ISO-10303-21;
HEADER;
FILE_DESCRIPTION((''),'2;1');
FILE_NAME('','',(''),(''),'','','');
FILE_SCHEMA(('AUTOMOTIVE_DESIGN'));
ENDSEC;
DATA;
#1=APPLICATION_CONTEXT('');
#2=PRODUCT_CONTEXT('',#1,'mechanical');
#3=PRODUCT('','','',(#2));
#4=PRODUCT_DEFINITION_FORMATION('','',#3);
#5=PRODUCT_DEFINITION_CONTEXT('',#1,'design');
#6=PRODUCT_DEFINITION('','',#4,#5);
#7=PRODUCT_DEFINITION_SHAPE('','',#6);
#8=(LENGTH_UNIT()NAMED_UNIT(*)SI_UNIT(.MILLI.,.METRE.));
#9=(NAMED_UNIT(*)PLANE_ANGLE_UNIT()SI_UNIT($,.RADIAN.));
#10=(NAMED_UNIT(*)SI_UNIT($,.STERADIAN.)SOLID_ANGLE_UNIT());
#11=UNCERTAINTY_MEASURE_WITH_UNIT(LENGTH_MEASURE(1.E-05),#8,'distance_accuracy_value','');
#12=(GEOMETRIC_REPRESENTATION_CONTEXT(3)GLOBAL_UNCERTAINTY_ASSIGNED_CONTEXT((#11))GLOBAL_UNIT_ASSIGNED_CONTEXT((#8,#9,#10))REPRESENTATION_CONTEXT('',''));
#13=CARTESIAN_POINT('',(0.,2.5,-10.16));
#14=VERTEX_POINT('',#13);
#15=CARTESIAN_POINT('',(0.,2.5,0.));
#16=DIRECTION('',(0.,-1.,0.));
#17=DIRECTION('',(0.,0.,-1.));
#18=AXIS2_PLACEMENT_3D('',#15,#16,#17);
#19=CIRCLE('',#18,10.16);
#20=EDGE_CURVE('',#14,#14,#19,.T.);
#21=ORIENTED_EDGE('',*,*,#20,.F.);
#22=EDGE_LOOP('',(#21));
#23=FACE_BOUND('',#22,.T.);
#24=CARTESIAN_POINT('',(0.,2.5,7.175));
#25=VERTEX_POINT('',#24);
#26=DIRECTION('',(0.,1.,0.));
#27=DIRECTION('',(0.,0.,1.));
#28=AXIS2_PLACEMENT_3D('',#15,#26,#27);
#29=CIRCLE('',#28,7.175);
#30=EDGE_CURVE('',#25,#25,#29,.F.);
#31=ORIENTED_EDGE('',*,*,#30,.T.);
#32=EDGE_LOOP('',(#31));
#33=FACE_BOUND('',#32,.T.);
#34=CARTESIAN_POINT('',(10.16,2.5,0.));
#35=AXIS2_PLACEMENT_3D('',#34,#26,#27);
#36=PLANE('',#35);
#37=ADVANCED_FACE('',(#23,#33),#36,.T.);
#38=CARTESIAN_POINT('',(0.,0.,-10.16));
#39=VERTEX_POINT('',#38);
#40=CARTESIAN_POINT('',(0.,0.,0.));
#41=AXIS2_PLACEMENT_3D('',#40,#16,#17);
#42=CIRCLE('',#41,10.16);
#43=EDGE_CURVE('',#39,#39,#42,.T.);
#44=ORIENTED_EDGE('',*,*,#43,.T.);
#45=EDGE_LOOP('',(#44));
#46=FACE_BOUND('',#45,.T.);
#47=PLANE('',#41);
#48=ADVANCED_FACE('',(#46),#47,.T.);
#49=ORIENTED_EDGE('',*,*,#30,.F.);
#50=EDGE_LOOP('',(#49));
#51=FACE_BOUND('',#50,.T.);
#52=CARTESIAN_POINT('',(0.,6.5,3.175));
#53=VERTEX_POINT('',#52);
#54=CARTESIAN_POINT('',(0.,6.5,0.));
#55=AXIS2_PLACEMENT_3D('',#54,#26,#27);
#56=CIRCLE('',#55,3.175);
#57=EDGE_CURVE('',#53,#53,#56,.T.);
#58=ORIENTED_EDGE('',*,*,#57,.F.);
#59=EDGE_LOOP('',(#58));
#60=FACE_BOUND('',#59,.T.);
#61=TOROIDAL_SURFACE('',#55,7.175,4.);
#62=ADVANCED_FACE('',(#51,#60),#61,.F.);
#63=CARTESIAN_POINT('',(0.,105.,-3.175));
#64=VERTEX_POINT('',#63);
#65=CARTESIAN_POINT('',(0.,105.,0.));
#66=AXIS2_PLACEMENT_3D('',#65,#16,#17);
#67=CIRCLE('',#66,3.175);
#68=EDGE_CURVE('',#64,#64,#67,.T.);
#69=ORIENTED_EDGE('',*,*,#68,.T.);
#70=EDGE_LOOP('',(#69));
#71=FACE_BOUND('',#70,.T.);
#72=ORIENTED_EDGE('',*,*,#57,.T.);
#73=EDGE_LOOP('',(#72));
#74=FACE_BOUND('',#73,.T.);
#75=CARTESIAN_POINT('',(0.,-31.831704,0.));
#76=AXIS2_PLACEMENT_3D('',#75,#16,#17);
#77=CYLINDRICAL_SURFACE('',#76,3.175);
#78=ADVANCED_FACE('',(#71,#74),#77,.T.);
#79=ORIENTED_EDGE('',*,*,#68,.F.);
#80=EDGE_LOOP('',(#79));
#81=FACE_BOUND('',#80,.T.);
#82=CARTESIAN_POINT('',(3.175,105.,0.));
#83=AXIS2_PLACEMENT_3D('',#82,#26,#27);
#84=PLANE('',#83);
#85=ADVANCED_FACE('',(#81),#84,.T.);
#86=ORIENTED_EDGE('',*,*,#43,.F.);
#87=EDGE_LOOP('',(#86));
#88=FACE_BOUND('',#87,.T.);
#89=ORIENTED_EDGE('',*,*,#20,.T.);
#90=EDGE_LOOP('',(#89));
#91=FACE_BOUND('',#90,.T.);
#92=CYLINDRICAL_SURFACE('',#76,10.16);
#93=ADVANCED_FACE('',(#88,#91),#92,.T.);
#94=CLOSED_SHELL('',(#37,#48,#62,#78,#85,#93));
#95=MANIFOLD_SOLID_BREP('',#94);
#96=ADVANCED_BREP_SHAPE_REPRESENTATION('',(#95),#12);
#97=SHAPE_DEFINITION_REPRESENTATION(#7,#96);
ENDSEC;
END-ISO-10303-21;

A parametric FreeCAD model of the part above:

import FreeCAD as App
import Part
import Sketcher
from FreeCAD import Vector


def edges_at(feature, points):
    """Names of the edges that pass closest to the given points."""
    edges = feature.Shape.Edges
    near = lambda p: min(range(len(edges)), key=lambda i: edges[i].distToShape(Part.Vertex(*p))[0])
    return sorted({f"Edge{near(p) + 1}" for p in points})


def add_polygon(sketch, points):
    """Adds a closed chain of lines whose ends are joined by coincident constraints."""
    first, n = sketch.GeometryCount, len(points)
    for a, b in zip(points, points[1:] + points[:1]):
        sketch.addGeometry(Part.LineSegment(App.Vector(*a, 0), App.Vector(*b, 0)), False)
    for i in range(n):
        sketch.addConstraint(Sketcher.Constraint("Coincident", first + i, 2, first + (i + 1) % n, 1))

doc = App.newDocument("Part")
params = doc.addObject("Spreadsheet::Sheet", "Params")
for row, (alias, value) in enumerate([
    ("sketch1_height", "105 mm"),
    ("sketch1_height2", "2.5 mm"),
    ("sketch1_width", "10.16 mm"),
    ("revolution_angle", "360 deg"),
    ("fillet_radius", "4 mm"),
], start=1):
    params.set(f"A{row}", alias)
    params.set(f"B{row}", "=" + value)
    params.setAlias(f"B{row}", alias)

body = doc.addObject("PartDesign::Body", "Body")

# Sketch on XY plane
sketch1 = body.newObject("Sketcher::SketchObject", "Sketch")
sketch1.AttachmentSupport = (doc.getObject("XY_Plane"), [""])
sketch1.MapMode = "FlatFace"
add_polygon(sketch1, [(0, 0), (10.2, 0), (10.2, 2.5), (3.2, 2.5), (3.2, 105), (0, 105)])  # lines 0-5
sketch1.addConstraint([
    Sketcher.Constraint("Horizontal", 0),
    Sketcher.Constraint("Vertical", 1),
    Sketcher.Constraint("Horizontal", 2),
    Sketcher.Constraint("Vertical", 3),
    Sketcher.Constraint("Horizontal", 4),
    Sketcher.Constraint("Vertical", 5),
    Sketcher.Constraint("Coincident", 5, 2, -1, 1),
    Sketcher.Constraint("DistanceY", 5, 2, 5, 1, 105.0),
    Sketcher.Constraint("DistanceY", 1, 1, 1, 2, 2.5),
    Sketcher.Constraint("DistanceX", 0, 1, 0, 2, 10.16),
    Sketcher.Constraint("DistanceX", 2, 2, 2, 1, 6.985),
])
sketch1.setExpression("Constraints[13]", "Params.sketch1_height")
sketch1.setExpression("Constraints[14]", "Params.sketch1_height2")
sketch1.setExpression("Constraints[15]", "Params.sketch1_width")
revolution = body.newObject("PartDesign::Revolution", "Revolution")
revolution.Profile = sketch1
revolution.ReferenceAxis = (sketch1, ["V_Axis"])
revolution.setExpression("Angle", "Params.revolution_angle")
doc.recompute()

fillet = body.newObject("PartDesign::Fillet", "Fillet")
fillet.Base = (revolution, edges_at(revolution, [(0, 2.5, 3.175)]))
fillet.setExpression("Radius", "Params.fillet_radius")

doc.recompute()
